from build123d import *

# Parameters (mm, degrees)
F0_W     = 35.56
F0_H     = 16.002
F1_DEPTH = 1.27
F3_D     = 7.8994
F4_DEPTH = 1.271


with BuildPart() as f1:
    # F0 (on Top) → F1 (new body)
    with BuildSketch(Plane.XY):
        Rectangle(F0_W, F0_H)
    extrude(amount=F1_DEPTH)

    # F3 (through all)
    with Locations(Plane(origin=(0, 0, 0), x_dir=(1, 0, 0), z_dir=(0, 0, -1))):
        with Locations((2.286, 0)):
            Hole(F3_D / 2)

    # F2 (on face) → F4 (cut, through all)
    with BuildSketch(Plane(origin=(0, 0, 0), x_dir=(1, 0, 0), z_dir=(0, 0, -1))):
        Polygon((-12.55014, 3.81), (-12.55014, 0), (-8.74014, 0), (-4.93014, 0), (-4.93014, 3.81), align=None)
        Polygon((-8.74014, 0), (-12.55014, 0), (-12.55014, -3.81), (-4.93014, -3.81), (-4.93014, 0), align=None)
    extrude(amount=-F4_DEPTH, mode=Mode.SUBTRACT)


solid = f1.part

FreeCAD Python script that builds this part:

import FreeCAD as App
import Part
import Sketcher
Q = App.Units.Quantity


def add_polygon(sketch, points):
    """Adds a closed chain of lines whose ends are joined by coincident constraints."""
    first, n = sketch.GeometryCount, len(points)
    for a, b in zip(points, points[1:] + points[:1]):
        sketch.addGeometry(Part.LineSegment(App.Vector(*a, 0), App.Vector(*b, 0)), False)
    for i in range(n):
        sketch.addConstraint(Sketcher.Constraint("Coincident", first + i, 2, first + (i + 1) % n, 1))

doc = App.newDocument("Part")
body = doc.addObject("PartDesign::Body", "Body")

sketch1 = body.newObject("Sketcher::SketchObject", "Sketch")
sketch1.AttachmentSupport = (doc.getObject("XY_Plane"), [""])
sketch1.MapMode = "FlatFace"
add_polygon(sketch1, [(-18, 8), (-18, -8), (18, -8), (18, 8)])
sketch1.addConstraint([
    Sketcher.Constraint("Vertical", 0),
    Sketcher.Constraint("Horizontal", 1),
    Sketcher.Constraint("Vertical", 2),
    Sketcher.Constraint("Horizontal", 3),
    Sketcher.Constraint("Symmetric", 0, 2, 2, 2, -1, 1),
    Sketcher.Constraint("DistanceX", 1, 1, 1, 2, Q("1.4 in")),
    Sketcher.Constraint("DistanceY", 0, 2, 0, 1, Q("0.63 in")),
])
pad1 = body.newObject("PartDesign::Pad", "Pad")
pad1.Profile = sketch1
pad1.Length = Q("0.05 in")

sketch2 = body.newObject("Sketcher::SketchObject", "Sketch001")
sketch2.AttachmentSupport = (doc.getObject("XY_Plane"), [""])
sketch2.MapMode = "FlatFace"
sketch2.addGeometry(Part.Circle(App.Vector(2.3, 0, 0), App.Vector(0, 0, 1), 3.9), False)
sketch2.addConstraint([
    Sketcher.Constraint("PointOnObject", 0, 3, -1),
    Sketcher.Constraint("Diameter", 0, Q("0.311 in")),
    Sketcher.Constraint("DistanceX", -1, 1, 0, 3, Q("0.09 in")),
])
doc.recompute()
hole = body.newObject("PartDesign::Hole", "Hole")
hole.Profile = sketch2
hole.ThreadType = "None"
hole.Diameter = Q("0.311 in")
hole.DepthType = "ThroughAll"
hole.Reversed = True

sketch3 = body.newObject("Sketcher::SketchObject", "Sketch002")
sketch3.AttachmentSupport = (doc.getObject("XY_Plane"), [""])
sketch3.MapMode = "FlatFace"
add_polygon(sketch3, [(-13, -4), (-13, 4), (-5, 4), (-5, -4)])
sketch3.addConstraint([
    Sketcher.Constraint("Vertical", 0),
    Sketcher.Constraint("Horizontal", 1),
    Sketcher.Constraint("Vertical", 2),
    Sketcher.Constraint("Horizontal", 3),
    Sketcher.Constraint("Equal", 3, 0),
    Sketcher.Constraint("DistanceX", 1, 1, 1, 2, Q("0.3 in")),
    Sketcher.Constraint("DistanceY", -1, 1, 0, 2, Q("0.15 in")),
    Sketcher.Constraint("DistanceX", 0, 2, -1, 1, Q("0.4941 in")),
])
pocket1 = body.newObject("PartDesign::Pocket", "Pocket")
pocket1.Profile = sketch3
pocket1.Type = "ThroughAll"
pocket1.Reversed = True

doc.recompute()
